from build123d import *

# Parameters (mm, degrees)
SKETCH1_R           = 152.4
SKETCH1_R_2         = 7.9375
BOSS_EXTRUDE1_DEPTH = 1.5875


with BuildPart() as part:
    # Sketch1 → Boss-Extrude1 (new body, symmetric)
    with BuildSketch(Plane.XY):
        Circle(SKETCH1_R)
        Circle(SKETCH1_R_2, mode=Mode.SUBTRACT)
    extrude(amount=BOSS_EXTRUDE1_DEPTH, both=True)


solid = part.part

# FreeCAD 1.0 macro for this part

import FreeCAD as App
import Part
import Sketcher
Q = App.Units.Quantity

doc = App.newDocument("Part")
body = doc.addObject("PartDesign::Body", "Body")

sketch1 = body.newObject("Sketcher::SketchObject", "Sketch")
sketch1.AttachmentSupport = (doc.getObject("XY_Plane"), [""])
sketch1.MapMode = "FlatFace"
sketch1.addGeometry([
    Part.Circle(App.Vector(0, 0, 0), App.Vector(0, 0, 1), 152),
    Part.Circle(App.Vector(0, 0, 0), App.Vector(0, 0, 1), 8),
], False)
sketch1.addConstraint([
    Sketcher.Constraint("Coincident", 0, 3, -1, 1),
    Sketcher.Constraint("Coincident", 1, 3, -1, 1),
    Sketcher.Constraint("Diameter", 0, Q("12 in")),
    Sketcher.Constraint("Diameter", 1, Q("0.625 in")),
])
pad1 = body.newObject("PartDesign::Pad", "Pad")
pad1.Profile = sketch1
pad1.Length = Q("0.125 in")
pad1.Midplane = True

doc.recompute()
